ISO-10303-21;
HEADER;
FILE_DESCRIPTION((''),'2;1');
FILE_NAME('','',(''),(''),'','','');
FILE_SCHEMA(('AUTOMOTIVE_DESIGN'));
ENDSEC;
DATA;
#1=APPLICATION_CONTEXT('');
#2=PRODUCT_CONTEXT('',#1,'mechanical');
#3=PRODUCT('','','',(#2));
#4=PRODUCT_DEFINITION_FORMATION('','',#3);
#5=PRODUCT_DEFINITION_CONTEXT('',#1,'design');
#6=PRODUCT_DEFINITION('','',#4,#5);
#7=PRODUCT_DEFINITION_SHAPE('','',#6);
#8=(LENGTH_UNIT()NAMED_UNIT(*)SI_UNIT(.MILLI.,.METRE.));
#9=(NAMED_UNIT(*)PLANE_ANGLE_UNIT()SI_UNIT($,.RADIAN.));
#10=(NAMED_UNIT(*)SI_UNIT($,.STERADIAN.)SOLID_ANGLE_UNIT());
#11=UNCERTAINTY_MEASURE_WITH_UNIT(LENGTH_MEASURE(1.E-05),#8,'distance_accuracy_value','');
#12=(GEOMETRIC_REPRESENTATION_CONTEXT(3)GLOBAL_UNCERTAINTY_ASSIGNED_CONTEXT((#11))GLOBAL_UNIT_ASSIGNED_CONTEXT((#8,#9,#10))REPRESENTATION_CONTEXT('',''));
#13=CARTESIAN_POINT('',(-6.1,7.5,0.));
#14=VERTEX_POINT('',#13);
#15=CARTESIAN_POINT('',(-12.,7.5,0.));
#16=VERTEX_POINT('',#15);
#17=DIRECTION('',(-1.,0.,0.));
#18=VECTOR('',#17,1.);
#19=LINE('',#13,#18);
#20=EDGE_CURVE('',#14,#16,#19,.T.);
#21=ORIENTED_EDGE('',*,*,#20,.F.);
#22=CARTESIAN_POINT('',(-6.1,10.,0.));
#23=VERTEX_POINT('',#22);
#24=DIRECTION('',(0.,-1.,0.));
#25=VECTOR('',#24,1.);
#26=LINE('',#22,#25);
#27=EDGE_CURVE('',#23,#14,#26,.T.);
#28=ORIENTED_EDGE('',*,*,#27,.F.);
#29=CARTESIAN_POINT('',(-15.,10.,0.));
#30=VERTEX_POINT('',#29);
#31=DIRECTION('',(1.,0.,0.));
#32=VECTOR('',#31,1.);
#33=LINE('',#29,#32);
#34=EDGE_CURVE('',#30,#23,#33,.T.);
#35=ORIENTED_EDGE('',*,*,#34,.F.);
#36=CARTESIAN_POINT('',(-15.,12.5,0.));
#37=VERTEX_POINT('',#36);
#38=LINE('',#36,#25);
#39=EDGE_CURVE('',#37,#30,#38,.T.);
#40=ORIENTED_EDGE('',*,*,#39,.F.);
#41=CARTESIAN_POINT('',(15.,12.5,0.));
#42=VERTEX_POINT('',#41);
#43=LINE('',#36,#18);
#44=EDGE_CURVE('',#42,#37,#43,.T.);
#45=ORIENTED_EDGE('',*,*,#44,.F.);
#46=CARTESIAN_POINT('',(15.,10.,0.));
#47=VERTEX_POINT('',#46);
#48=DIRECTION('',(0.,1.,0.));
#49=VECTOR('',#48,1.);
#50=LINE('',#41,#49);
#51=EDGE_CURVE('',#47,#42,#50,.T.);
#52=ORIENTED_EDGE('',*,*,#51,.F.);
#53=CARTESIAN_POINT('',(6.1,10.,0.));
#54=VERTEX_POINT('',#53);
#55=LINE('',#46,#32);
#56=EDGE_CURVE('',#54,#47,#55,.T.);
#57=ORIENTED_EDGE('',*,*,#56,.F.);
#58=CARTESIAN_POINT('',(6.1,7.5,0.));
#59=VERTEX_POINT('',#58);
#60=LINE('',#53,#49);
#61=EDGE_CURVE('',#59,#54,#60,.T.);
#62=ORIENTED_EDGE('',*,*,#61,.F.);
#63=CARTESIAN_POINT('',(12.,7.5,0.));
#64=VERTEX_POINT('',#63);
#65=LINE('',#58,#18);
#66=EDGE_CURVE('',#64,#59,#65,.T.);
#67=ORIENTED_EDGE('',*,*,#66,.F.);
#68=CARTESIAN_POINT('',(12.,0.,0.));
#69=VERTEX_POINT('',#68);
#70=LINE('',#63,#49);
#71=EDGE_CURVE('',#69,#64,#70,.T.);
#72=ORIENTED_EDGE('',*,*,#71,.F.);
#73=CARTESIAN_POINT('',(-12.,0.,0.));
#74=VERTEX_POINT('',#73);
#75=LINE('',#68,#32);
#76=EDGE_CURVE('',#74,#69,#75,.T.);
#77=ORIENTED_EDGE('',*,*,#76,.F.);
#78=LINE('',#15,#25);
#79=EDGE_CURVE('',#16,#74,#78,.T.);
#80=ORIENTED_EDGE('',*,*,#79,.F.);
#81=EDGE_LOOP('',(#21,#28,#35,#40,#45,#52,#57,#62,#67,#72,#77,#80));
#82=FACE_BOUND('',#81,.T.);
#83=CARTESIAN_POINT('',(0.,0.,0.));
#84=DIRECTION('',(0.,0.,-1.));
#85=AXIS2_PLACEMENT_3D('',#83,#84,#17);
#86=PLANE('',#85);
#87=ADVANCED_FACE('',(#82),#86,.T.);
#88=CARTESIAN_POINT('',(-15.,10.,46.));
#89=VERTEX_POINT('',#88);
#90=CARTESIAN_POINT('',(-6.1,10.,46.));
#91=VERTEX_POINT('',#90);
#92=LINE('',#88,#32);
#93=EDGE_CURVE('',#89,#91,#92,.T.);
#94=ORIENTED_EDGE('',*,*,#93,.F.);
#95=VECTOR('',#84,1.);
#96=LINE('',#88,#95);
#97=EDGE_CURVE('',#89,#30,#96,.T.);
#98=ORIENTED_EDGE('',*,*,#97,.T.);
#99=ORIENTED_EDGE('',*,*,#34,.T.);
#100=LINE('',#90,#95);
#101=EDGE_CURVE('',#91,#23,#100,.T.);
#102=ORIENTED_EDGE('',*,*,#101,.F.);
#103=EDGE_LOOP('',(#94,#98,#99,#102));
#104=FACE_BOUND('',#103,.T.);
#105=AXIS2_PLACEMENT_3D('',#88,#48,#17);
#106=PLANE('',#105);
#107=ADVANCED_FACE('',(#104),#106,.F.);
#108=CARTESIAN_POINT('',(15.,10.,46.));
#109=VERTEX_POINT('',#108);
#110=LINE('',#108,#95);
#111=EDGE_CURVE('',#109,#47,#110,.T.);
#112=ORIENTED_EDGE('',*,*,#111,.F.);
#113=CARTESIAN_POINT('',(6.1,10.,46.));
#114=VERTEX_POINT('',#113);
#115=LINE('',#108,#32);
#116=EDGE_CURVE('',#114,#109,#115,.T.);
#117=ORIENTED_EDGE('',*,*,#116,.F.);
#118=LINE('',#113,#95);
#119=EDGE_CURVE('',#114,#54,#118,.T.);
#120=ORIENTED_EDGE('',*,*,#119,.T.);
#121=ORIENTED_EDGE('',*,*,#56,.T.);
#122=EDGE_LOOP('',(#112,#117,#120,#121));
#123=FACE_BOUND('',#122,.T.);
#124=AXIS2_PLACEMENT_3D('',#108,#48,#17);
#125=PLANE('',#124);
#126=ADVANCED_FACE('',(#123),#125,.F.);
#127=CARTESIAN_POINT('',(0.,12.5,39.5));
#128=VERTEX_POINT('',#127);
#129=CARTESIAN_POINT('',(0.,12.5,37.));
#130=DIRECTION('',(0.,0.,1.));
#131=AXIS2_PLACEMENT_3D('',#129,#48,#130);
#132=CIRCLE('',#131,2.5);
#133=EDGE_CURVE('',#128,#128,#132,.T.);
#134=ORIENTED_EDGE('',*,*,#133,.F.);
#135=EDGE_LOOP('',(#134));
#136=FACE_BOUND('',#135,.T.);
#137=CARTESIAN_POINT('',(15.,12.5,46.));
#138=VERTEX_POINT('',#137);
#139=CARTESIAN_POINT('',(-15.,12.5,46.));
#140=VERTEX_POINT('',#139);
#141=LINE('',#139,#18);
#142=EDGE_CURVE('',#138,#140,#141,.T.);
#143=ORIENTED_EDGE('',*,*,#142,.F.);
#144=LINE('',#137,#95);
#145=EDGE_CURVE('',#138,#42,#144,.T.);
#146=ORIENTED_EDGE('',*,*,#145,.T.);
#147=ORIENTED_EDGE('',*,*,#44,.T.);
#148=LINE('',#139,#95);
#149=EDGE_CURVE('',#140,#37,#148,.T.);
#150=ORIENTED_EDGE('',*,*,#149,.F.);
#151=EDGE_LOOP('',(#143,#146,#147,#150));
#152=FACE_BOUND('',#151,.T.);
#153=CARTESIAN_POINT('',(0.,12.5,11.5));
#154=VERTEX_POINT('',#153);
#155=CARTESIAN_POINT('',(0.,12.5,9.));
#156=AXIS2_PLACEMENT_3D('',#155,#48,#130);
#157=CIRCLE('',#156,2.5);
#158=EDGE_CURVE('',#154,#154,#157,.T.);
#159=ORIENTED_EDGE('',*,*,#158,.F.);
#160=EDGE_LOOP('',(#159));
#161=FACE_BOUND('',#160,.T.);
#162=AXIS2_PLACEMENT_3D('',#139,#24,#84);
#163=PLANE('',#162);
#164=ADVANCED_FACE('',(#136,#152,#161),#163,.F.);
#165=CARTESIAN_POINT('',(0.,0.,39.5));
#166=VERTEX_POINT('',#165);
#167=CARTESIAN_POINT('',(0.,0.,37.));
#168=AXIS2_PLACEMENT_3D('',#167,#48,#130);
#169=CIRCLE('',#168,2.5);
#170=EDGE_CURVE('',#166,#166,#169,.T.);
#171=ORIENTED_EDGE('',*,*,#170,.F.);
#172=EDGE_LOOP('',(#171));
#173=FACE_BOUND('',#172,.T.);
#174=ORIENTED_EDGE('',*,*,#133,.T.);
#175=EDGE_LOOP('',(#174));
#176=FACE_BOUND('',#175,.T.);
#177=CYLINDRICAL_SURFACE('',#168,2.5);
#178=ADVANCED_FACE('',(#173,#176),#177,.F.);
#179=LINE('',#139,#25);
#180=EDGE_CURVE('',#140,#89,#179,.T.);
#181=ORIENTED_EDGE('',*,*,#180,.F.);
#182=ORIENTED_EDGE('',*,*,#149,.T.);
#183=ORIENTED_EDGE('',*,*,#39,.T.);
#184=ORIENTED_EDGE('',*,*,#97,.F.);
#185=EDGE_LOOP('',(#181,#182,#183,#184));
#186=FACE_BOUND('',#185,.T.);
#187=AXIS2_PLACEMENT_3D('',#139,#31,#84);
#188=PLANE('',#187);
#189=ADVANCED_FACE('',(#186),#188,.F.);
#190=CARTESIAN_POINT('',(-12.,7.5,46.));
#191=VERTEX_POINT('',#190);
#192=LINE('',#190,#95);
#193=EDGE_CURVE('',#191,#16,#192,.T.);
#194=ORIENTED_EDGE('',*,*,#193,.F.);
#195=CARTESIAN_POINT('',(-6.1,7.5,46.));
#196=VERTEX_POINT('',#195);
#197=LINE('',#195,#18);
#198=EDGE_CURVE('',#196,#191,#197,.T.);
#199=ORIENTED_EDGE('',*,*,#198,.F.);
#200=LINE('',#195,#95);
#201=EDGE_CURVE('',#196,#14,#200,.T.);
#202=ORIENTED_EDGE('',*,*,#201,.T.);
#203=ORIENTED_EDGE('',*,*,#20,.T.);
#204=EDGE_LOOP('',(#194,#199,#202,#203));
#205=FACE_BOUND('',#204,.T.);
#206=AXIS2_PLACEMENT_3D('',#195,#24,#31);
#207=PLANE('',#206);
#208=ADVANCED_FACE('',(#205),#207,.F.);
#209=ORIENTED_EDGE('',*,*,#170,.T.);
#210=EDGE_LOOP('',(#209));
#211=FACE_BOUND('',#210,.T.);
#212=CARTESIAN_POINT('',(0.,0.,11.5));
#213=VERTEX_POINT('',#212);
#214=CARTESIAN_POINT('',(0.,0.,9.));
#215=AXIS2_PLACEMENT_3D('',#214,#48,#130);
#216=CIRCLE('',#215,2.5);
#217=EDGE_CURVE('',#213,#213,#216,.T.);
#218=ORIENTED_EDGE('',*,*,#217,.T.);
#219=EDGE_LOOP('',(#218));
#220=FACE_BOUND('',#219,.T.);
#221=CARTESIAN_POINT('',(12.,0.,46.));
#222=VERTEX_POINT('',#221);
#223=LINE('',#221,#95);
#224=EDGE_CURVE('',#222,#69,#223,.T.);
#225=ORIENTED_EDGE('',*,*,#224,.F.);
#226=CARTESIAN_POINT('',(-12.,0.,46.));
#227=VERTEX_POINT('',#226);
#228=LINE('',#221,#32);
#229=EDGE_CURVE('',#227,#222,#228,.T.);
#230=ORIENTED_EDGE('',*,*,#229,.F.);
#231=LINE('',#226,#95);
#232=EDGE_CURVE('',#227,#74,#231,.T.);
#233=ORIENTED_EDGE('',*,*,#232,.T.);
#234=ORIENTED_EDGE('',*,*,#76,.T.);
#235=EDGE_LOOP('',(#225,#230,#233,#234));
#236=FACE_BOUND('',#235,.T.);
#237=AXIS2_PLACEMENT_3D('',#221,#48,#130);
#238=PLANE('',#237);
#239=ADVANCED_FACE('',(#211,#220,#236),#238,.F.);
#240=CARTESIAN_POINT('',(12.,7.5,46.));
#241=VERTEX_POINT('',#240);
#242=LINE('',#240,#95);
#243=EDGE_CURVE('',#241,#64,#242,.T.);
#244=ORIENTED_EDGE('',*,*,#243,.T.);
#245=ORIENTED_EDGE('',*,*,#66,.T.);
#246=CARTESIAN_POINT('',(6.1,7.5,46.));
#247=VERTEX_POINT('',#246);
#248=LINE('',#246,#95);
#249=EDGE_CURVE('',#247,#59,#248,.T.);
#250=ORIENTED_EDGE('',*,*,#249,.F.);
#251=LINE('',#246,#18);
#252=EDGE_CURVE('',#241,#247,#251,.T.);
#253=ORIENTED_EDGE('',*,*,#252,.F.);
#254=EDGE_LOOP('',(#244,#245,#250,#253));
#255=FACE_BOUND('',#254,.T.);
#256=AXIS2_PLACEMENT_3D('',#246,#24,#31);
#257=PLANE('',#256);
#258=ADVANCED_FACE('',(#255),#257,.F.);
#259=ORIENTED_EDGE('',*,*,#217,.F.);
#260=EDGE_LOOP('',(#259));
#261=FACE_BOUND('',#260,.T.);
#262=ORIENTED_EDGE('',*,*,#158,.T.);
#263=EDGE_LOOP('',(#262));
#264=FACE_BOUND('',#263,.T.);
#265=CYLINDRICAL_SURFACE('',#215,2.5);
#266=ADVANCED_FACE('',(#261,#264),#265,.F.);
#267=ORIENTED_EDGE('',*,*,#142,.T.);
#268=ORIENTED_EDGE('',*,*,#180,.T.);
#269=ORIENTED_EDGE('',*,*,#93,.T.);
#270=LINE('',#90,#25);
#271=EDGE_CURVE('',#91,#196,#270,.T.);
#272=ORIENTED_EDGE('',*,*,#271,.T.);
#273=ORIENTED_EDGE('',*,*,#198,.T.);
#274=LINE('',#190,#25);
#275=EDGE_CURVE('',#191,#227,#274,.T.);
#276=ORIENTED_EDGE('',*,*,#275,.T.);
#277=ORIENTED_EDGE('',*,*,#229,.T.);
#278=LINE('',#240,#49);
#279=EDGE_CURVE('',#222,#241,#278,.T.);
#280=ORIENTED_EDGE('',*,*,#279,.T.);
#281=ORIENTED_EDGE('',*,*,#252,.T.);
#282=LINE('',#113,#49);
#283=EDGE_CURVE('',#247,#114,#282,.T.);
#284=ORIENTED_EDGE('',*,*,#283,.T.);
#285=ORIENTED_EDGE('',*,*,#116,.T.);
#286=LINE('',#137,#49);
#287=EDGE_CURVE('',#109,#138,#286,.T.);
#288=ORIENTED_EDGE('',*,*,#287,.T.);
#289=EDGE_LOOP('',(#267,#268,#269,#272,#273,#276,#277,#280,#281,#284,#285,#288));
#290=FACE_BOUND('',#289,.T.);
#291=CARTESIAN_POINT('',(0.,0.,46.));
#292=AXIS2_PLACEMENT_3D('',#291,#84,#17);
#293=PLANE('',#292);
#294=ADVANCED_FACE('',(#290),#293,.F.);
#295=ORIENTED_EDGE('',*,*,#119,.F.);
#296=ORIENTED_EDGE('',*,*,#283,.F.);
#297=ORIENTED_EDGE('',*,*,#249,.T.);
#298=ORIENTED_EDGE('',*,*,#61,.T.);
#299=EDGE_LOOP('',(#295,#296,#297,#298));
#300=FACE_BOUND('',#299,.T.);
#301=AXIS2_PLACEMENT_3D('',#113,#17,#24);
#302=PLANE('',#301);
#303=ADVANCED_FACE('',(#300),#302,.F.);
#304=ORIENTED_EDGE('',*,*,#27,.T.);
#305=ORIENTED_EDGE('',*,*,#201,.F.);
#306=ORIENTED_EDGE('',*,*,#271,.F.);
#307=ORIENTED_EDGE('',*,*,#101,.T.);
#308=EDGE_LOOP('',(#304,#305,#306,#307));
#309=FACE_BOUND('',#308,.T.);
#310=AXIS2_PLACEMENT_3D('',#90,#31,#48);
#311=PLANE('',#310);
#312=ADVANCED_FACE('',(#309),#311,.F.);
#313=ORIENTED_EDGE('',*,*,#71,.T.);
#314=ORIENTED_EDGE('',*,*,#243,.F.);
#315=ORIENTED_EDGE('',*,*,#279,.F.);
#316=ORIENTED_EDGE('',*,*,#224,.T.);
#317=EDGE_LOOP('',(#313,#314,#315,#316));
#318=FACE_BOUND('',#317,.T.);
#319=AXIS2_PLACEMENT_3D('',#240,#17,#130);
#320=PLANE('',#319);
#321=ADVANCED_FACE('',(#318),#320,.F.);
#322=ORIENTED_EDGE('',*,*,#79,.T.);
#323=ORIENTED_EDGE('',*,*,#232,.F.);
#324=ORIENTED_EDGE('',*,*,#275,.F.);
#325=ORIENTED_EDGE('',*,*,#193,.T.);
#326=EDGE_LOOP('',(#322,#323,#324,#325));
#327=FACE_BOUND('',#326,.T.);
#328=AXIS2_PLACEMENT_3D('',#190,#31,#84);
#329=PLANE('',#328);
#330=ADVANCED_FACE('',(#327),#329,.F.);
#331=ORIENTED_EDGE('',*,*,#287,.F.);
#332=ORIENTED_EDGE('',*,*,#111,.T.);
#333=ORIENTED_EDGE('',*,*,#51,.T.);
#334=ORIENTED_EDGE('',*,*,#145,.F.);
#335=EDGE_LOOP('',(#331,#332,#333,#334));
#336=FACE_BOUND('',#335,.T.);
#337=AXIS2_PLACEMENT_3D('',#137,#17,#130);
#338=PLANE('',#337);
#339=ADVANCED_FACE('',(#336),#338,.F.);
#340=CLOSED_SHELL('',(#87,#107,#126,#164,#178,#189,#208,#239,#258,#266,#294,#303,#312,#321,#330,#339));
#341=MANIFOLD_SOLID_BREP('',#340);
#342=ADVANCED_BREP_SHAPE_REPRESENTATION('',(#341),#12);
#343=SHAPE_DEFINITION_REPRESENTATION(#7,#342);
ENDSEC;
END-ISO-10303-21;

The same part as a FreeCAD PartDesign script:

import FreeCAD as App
import Part
import Sketcher
Q = App.Units.Quantity


def add_polygon(sketch, points):
    """Adds a closed chain of lines whose ends are joined by coincident constraints."""
    first, n = sketch.GeometryCount, len(points)
    for a, b in zip(points, points[1:] + points[:1]):
        sketch.addGeometry(Part.LineSegment(App.Vector(*a, 0), App.Vector(*b, 0)), False)
    for i in range(n):
        sketch.addConstraint(Sketcher.Constraint("Coincident", first + i, 2, first + (i + 1) % n, 1))

doc = App.newDocument("Part")
body = doc.addObject("PartDesign::Body", "Body")

# Sketch on XY plane
sketch1 = doc.addObject("Sketcher::SketchObject", "Sketch")
body.addObject(sketch1)
sketch1.AttachmentSupport = (doc.XY_Plane, [""])
sketch1.MapMode = "FlatFace"
add_polygon(sketch1, [(15, 12.5), (-15, 12.5), (-15, 10), (-6.1, 10), (-6.1, 7.5), (-12, 7.5), (-12, 0), (12, 0), (12, 7.5), (6.1, 7.5), (6.1, 10), (15, 10)])  # lines 0-11
sketch1.addConstraint([
    Sketcher.Constraint("Horizontal", 0),
    Sketcher.Constraint("Vertical", 1),
    Sketcher.Constraint("Horizontal", 2),
    Sketcher.Constraint("Vertical", 3),
    Sketcher.Constraint("Horizontal", 4),
    Sketcher.Constraint("Vertical", 5),
    Sketcher.Constraint("Horizontal", 6),
    Sketcher.Constraint("Vertical", 7),
    Sketcher.Constraint("Horizontal", 8),
    Sketcher.Constraint("Vertical", 9),
    Sketcher.Constraint("Horizontal", 10),
    Sketcher.Constraint("Vertical", 11),
    Sketcher.Constraint("Symmetric", 5, 2, 6, 2, -1, 1),
    Sketcher.Constraint("Symmetric", 3, 2, 8, 2, -2),
    Sketcher.Constraint("Symmetric", 1, 2, 10, 2, -2),
    Sketcher.Constraint("Equal", 1, 3),
    Sketcher.Constraint("DistanceX", 0, 2, 0, 1, Q("30 mm")),
    Sketcher.Constraint("DistanceX", 6, 1, 6, 2, Q("24 mm")),
    Sketcher.Constraint("DistanceX", 2, 1, 2, 2, Q("8.9 mm")),
    Sketcher.Constraint("DistanceY", 1, 2, 1, 1, Q("2.5 mm")),
    Sketcher.Constraint("DistanceY", 5, 2, 5, 1, Q("7.5 mm")),
])
pad1 = doc.addObject("PartDesign::Pad", "Pad")
body.addObject(pad1)
pad1.Profile = sketch1
pad1.Length = 46

# Sketch on XZ plane
sketch2 = doc.addObject("Sketcher::SketchObject", "Sketch001")
body.addObject(sketch2)
sketch2.AttachmentSupport = (doc.XZ_Plane, [""])
sketch2.MapMode = "FlatFace"
sketch2.AttachmentOffset = App.Placement(App.Vector(0, 0, -12.5), App.Rotation())
sketch2.addGeometry([
    Part.Circle(App.Vector(0, 9, 0), App.Vector(0, 0, 1), 2.5),
    Part.Circle(App.Vector(0, 37, 0), App.Vector(0, 0, 1), 2.5),
], False)
sketch2.addConstraint([
    Sketcher.Constraint("Equal", 0, 1),
    Sketcher.Constraint("PointOnObject", 0, 3, -2),
    Sketcher.Constraint("PointOnObject", 1, 3, -2),
    Sketcher.Constraint("Diameter", 0, Q("5 mm")),
    Sketcher.Constraint("DistanceY", -1, 1, 0, 3, Q("9 mm")),
    Sketcher.Constraint("DistanceY", -1, 1, 1, 3, Q("37 mm")),
])
pocket1 = doc.addObject("PartDesign::Pocket", "Pocket")
body.addObject(pocket1)
pocket1.Profile = sketch2
pocket1.Type = "ThroughAll"
pocket1.Reversed = True

doc.recompute()
